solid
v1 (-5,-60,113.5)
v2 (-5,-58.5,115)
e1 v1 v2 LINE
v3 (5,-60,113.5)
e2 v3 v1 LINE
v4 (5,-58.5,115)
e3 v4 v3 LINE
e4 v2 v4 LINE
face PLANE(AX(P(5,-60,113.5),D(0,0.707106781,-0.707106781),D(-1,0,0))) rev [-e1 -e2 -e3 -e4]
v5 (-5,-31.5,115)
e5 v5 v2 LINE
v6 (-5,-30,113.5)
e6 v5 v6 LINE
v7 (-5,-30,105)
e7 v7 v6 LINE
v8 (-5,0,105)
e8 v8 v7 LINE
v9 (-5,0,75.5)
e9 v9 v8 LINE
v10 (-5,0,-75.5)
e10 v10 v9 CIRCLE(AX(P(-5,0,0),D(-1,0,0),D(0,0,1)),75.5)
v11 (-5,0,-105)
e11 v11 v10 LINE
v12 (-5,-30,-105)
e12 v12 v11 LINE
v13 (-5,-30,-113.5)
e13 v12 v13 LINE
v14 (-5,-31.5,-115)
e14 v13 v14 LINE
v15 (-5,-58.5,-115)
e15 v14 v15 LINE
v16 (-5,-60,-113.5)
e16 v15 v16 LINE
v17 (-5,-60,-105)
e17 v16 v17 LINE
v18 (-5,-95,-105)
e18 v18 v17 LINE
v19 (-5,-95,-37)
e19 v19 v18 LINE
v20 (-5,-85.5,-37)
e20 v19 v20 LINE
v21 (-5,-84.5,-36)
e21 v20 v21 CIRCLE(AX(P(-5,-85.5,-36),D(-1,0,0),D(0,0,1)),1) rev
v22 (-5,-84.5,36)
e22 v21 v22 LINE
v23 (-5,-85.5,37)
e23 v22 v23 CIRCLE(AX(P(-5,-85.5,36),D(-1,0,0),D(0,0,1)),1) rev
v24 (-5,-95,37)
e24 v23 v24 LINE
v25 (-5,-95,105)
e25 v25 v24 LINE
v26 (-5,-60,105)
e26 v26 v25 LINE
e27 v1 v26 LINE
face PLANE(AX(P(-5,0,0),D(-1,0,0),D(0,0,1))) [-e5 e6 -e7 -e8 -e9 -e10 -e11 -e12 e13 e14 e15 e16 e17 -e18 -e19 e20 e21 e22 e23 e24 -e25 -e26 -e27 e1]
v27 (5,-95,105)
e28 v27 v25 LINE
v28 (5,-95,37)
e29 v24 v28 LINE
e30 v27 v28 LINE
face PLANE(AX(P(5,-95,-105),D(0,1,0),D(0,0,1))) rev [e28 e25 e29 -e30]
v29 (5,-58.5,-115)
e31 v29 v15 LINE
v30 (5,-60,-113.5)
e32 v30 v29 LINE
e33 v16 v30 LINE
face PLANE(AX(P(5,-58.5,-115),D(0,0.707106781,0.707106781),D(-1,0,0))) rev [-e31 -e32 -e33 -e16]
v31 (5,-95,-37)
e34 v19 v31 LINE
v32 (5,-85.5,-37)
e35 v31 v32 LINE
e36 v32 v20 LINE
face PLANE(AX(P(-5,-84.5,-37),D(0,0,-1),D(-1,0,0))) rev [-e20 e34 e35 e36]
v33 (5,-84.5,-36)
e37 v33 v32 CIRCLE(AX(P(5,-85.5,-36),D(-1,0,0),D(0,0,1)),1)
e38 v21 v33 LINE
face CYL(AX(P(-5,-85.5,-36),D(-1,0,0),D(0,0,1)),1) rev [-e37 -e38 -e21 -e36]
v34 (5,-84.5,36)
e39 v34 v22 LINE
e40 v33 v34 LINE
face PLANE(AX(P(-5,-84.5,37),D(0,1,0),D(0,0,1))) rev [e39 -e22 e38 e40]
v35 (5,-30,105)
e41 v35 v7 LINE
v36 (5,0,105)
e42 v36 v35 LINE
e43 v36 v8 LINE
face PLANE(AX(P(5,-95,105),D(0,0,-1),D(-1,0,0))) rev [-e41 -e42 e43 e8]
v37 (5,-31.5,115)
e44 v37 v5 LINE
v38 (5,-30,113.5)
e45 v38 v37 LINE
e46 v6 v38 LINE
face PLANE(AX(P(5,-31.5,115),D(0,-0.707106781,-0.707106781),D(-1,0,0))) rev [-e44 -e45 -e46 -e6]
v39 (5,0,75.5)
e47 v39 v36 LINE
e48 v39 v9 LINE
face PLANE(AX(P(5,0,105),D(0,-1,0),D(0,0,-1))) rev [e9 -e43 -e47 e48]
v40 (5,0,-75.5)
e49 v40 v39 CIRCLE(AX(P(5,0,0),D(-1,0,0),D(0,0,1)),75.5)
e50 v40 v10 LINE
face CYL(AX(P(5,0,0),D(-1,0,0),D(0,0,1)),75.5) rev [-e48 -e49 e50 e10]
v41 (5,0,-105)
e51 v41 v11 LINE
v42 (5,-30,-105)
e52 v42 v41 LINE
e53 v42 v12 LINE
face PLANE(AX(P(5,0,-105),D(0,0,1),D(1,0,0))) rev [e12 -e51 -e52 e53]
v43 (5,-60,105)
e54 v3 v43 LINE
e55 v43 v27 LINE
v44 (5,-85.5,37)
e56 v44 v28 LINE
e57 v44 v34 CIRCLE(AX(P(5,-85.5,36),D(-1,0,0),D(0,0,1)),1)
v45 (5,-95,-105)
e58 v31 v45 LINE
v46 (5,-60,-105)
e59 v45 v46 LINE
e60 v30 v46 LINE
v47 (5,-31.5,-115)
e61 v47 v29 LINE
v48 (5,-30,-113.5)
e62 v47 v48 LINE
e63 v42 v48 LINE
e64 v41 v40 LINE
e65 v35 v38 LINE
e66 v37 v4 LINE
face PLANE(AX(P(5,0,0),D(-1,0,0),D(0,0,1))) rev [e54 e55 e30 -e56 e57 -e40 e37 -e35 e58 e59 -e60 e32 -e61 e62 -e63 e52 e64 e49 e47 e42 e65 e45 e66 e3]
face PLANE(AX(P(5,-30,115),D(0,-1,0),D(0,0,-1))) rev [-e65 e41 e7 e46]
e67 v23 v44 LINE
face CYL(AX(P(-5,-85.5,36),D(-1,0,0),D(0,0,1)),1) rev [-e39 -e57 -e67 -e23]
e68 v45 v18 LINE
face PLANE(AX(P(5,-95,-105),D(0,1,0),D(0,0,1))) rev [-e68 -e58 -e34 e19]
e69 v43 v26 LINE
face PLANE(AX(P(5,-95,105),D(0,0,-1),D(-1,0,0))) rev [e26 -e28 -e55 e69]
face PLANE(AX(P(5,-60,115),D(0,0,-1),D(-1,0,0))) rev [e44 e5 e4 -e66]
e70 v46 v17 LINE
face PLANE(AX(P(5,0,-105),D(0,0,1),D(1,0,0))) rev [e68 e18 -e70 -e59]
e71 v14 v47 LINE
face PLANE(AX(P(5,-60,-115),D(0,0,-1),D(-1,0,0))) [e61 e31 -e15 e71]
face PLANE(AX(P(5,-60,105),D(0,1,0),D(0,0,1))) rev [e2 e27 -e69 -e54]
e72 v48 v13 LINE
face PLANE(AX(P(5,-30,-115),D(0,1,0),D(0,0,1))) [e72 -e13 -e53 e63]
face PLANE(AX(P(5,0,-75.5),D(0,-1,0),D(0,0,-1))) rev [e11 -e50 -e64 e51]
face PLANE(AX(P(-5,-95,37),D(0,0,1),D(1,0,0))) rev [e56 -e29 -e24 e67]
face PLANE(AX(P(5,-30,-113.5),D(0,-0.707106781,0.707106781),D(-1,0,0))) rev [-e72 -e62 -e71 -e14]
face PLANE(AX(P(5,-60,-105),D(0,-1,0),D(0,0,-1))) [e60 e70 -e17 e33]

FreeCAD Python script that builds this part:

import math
import FreeCAD as App
import Part
import Sketcher

V = App.Vector


def edges_at(feature, points):
    """Names of the edges that pass closest to the given points."""
    edges = feature.Shape.Edges
    near = lambda p: min(range(len(edges)), key=lambda i: edges[i].distToShape(Part.Vertex(*p))[0])
    return sorted({f"Edge{near(p) + 1}" for p in points})


def add_polygon(sketch, points):
    """Adds a closed chain of lines whose ends are joined by coincident constraints."""
    first, n = sketch.GeometryCount, len(points)
    for a, b in zip(points, points[1:] + points[:1]):
        sketch.addGeometry(Part.LineSegment(App.Vector(*a, 0), App.Vector(*b, 0)), False)
    for i in range(n):
        sketch.addConstraint(Sketcher.Constraint("Coincident", first + i, 2, first + (i + 1) % n, 1))

doc = App.newDocument("Part")
body = doc.addObject("PartDesign::Body", "Body")

# Sketch on YZ plane
sketch1 = body.newObject("Sketcher::SketchObject", "Sketch")
sketch1.AttachmentSupport = (doc.getObject("YZ_Plane"), [""])
sketch1.MapMode = "FlatFace"
sketch1.addGeometry(Part.LineSegment(V(0, -105, 0), V(0, -76, 0)), False)
sketch1.addGeometry(Part.ArcOfCircle(Part.Circle(V(0, 0, 0), V(0, 0, 1), 76), math.radians(90), math.radians(270)), False)
sketch1.addGeometry(Part.LineSegment(V(0, 76, 0), V(0, 105, 0)), False)
sketch1.addGeometry(Part.LineSegment(V(0, 105, 0), V(-95, 105, 0)), False)
sketch1.addGeometry(Part.LineSegment(V(-95, 105, 0), V(-95, -105, 0)), False)
sketch1.addGeometry(Part.LineSegment(V(-95, -105, 0), V(0, -105, 0)), False)
sketch1.addConstraint(Sketcher.Constraint("Coincident", 0, 2, 1, 2))
sketch1.addConstraint(Sketcher.Constraint("Coincident", 1, 1, 2, 1))
sketch1.addConstraint(Sketcher.Constraint("Coincident", 2, 2, 3, 1))
sketch1.addConstraint(Sketcher.Constraint("Coincident", 3, 2, 4, 1))
sketch1.addConstraint(Sketcher.Constraint("Coincident", 4, 2, 5, 1))
sketch1.addConstraint(Sketcher.Constraint("Coincident", 5, 2, 0, 1))
sketch1.addConstraint(Sketcher.Constraint("Vertical", 0))
sketch1.addConstraint(Sketcher.Constraint("Vertical", 2))
sketch1.addConstraint(Sketcher.Constraint("Horizontal", 3))
sketch1.addConstraint(Sketcher.Constraint("Vertical", 4))
sketch1.addConstraint(Sketcher.Constraint("Horizontal", 5))
sketch1.addConstraint(Sketcher.Constraint("Coincident", 1, 3, -1, 1))
sketch1.addConstraint(Sketcher.Constraint("Symmetric", 2, 2, 5, 2, -1, 1))
sketch1.addConstraint(Sketcher.Constraint("PointOnObject", 0, 2, -2))
sketch1.addConstraint(Sketcher.Constraint("Radius", 1, 75.5))
sketch1.addConstraint(Sketcher.Constraint("DistanceX", 3, 2, 3, 1, 95.0))
sketch1.addConstraint(Sketcher.Constraint("DistanceY", 4, 2, 4, 1, 210.0))
pad1 = body.newObject("PartDesign::Pad", "Pad")
pad1.Profile = sketch1
pad1.Length = 10
pad1.Midplane = True

# Sketch on YZ plane
sketch2 = body.newObject("Sketcher::SketchObject", "Sketch001")
sketch2.AttachmentSupport = (doc.getObject("YZ_Plane"), [""])
sketch2.MapMode = "FlatFace"
add_polygon(sketch2, [(-30, 115), (-60, 115), (-60, 105), (-30, 105)])  # lines 0-3
sketch2.addConstraint(Sketcher.Constraint("Horizontal", 0))
sketch2.addConstraint(Sketcher.Constraint("Vertical", 1))
sketch2.addConstraint(Sketcher.Constraint("Horizontal", 2))
sketch2.addConstraint(Sketcher.Constraint("Vertical", 3))
sketch2.addConstraint(Sketcher.Constraint("DistanceX", 0, 2, 0, 1, 30.0))
sketch2.addConstraint(Sketcher.Constraint("DistanceY", 1, 2, 1, 1, 10.0))
sketch2.addConstraint(Sketcher.Constraint("DistanceX", 0, 2, -1, 1, 60.0))
sketch2.addConstraint(Sketcher.Constraint("DistanceY", -1, 1, 0, 2, 115.0))
pad2 = body.newObject("PartDesign::Pad", "Pad001")
pad2.Profile = sketch2
pad2.Length = 10
pad2.Midplane = True
doc.recompute()

chamfer = body.newObject("PartDesign::Chamfer", "Chamfer")
chamfer.Base = (pad2, edges_at(pad2, [(0, -30, 115), (0, -60, 115)]))
chamfer.Size = 1.5
doc.recompute()

mirrored = body.newObject("PartDesign::Mirrored", "Mirrored")
mirrored.Originals = [pad2]
mirrored.MirrorPlane = (doc.getObject("XY_Plane"), [""])
body.Tip = mirrored
doc.recompute()

chamfer2 = body.newObject("PartDesign::Chamfer", "Chamfer001")
chamfer2.Base = (mirrored, edges_at(mirrored, [(0, -30, -115), (0, -60, -115)]))
chamfer2.Size = 1.5

# Sketch on YZ plane
sketch3 = body.newObject("Sketcher::SketchObject", "Sketch002")
sketch3.AttachmentSupport = (doc.getObject("YZ_Plane"), [""])
sketch3.MapMode = "FlatFace"
add_polygon(sketch3, [(-84, 37), (-95, 37), (-95, -37), (-84, -37)])  # lines 0-3
sketch3.addConstraint(Sketcher.Constraint("Horizontal", 0))
sketch3.addConstraint(Sketcher.Constraint("Vertical", 1))
sketch3.addConstraint(Sketcher.Constraint("Horizontal", 2))
sketch3.addConstraint(Sketcher.Constraint("Vertical", 3))
sketch3.addConstraint(Sketcher.Constraint("DistanceY", 1, 2, 1, 1, 74.0))
sketch3.addConstraint(Sketcher.Constraint("DistanceX", 0, 2, 0, 1, 10.5))
sketch3.addConstraint(Sketcher.Constraint("DistanceX", 0, 2, -1, 1, 95.0))
sketch3.addConstraint(Sketcher.Constraint("DistanceY", -1, 1, 0, 2, 37.0))
pocket1 = body.newObject("PartDesign::Pocket", "Pocket")
pocket1.Profile = sketch3
pocket1.Type = "ThroughAll"
pocket1.Midplane = True
doc.recompute()

fillet = body.newObject("PartDesign::Fillet", "Fillet")
fillet.Base = (pocket1, edges_at(pocket1, [(0, -84.5, -37), (0, -84.5, 37)]))
fillet.Radius = 1

doc.recompute()
